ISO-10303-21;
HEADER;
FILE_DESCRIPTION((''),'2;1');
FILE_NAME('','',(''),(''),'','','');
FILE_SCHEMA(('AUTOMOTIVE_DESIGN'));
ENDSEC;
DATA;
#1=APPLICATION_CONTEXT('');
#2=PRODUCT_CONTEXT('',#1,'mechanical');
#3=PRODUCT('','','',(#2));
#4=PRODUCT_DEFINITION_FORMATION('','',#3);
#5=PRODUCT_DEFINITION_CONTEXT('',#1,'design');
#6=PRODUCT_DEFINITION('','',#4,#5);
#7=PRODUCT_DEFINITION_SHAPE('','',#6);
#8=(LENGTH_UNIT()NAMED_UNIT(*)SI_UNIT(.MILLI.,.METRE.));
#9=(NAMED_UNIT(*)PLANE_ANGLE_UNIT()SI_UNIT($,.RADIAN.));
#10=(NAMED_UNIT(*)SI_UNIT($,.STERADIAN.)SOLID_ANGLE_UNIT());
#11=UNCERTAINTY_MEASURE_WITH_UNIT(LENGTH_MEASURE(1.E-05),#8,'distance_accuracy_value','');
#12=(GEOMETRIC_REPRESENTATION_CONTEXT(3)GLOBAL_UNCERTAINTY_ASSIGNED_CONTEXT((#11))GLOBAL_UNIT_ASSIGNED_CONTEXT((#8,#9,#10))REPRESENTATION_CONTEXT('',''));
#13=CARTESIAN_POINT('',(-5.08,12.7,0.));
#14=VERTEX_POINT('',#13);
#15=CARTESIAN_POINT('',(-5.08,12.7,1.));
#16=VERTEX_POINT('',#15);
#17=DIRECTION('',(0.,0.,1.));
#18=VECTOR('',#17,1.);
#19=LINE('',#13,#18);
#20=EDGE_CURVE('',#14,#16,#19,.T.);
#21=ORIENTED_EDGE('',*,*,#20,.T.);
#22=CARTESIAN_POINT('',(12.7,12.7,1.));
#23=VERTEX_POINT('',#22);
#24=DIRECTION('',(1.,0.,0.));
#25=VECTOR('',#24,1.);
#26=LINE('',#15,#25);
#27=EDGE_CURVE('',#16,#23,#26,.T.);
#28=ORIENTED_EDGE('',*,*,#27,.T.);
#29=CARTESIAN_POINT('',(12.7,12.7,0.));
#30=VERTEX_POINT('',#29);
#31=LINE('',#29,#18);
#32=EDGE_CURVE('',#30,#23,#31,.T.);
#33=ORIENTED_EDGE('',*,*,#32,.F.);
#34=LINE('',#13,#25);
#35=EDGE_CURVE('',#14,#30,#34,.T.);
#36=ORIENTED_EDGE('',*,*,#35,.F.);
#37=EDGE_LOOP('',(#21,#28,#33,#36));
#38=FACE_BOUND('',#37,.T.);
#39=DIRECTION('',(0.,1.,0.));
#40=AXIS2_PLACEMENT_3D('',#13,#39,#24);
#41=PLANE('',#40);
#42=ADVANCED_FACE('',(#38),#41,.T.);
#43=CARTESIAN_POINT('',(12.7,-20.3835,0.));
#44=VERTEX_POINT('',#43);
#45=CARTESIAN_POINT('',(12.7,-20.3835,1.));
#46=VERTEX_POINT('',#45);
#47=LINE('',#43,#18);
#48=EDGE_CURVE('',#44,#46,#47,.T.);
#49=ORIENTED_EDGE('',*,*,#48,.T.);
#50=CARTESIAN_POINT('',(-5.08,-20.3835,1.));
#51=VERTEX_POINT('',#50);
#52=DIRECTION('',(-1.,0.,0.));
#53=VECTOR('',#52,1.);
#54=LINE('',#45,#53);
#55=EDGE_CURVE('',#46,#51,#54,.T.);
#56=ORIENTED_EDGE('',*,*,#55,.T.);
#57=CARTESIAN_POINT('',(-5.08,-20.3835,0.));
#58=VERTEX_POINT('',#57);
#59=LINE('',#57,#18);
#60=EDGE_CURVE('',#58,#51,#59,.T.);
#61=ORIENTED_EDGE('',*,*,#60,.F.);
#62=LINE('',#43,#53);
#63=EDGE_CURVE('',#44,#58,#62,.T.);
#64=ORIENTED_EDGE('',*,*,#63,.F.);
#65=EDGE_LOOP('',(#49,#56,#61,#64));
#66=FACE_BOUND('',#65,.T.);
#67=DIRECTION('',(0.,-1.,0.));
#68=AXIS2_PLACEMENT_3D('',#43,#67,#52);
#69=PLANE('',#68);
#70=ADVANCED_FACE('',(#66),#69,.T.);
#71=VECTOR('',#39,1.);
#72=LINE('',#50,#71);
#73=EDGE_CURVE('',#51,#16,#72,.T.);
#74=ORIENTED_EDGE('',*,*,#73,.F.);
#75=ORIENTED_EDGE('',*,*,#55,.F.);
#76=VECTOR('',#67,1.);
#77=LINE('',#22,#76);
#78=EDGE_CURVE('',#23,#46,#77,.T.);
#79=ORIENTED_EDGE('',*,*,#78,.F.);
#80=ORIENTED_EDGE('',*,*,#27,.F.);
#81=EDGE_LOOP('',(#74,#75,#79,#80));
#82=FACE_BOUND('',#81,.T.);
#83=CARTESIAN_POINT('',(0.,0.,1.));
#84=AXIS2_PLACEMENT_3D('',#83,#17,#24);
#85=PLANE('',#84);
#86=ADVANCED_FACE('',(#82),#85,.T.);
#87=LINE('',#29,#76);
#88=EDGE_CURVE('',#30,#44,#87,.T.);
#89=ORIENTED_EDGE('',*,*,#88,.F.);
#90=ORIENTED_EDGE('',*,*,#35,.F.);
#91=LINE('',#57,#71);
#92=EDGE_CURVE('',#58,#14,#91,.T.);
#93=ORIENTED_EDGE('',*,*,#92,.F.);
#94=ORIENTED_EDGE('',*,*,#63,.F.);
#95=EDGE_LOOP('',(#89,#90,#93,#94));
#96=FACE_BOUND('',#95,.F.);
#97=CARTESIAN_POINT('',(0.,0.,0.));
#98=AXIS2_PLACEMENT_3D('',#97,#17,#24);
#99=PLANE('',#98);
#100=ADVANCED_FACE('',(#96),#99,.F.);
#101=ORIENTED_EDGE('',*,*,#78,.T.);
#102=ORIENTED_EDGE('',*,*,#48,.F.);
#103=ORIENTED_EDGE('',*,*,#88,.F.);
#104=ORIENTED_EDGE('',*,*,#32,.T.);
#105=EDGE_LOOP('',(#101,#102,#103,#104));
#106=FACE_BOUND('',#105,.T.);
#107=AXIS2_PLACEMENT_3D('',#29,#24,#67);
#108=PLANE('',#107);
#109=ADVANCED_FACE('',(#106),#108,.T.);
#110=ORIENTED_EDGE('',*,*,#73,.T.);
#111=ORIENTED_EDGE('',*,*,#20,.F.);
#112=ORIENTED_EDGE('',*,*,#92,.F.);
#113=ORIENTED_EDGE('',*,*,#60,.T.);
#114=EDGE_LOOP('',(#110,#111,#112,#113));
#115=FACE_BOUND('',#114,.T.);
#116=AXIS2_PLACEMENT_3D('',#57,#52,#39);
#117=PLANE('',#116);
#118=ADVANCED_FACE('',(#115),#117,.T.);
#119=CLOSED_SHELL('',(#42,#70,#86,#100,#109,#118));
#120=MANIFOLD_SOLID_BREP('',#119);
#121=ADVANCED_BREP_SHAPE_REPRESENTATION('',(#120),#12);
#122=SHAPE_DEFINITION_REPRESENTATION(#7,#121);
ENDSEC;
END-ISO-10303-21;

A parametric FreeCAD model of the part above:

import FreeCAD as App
import Part
import Sketcher
from FreeCAD import Vector
Q = App.Units.Quantity


def add_polygon(sketch, points):
    """Adds a closed chain of lines whose ends are joined by coincident constraints."""
    first, n = sketch.GeometryCount, len(points)
    for a, b in zip(points, points[1:] + points[:1]):
        sketch.addGeometry(Part.LineSegment(App.Vector(*a, 0), App.Vector(*b, 0)), False)
    for i in range(n):
        sketch.addConstraint(Sketcher.Constraint("Coincident", first + i, 2, first + (i + 1) % n, 1))

doc = App.newDocument("Part")
body = doc.addObject("PartDesign::Body", "Body")

sketch1 = doc.addObject("Sketcher::SketchObject", "Sketch")
body.addObject(sketch1)
sketch1.AttachmentSupport = (doc.XY_Plane, [""])
sketch1.MapMode = "FlatFace"
add_polygon(sketch1, [(13, 13), (-5, 13), (-5, -20), (13, -20)])
sketch1.addConstraint([
    Sketcher.Constraint("Horizontal", 0),
    Sketcher.Constraint("Vertical", 1),
    Sketcher.Constraint("Horizontal", 2),
    Sketcher.Constraint("Vertical", 3),
    Sketcher.Constraint("DistanceX", 0, 2, 0, 1, Q("17.78 mm")),
    Sketcher.Constraint("DistanceY", -1, 1, 0, 2, Q("12.7 mm")),
    Sketcher.Constraint("DistanceX", -1, 1, 2, 2, Q("12.7 mm")),
    Sketcher.Constraint("DistanceY", 1, 2, 1, 1, Q("33.0835 mm")),
])
pad1 = doc.addObject("PartDesign::Pad", "Pad")
body.addObject(pad1)
pad1.Profile = sketch1
pad1.Length = 1

doc.recompute()
